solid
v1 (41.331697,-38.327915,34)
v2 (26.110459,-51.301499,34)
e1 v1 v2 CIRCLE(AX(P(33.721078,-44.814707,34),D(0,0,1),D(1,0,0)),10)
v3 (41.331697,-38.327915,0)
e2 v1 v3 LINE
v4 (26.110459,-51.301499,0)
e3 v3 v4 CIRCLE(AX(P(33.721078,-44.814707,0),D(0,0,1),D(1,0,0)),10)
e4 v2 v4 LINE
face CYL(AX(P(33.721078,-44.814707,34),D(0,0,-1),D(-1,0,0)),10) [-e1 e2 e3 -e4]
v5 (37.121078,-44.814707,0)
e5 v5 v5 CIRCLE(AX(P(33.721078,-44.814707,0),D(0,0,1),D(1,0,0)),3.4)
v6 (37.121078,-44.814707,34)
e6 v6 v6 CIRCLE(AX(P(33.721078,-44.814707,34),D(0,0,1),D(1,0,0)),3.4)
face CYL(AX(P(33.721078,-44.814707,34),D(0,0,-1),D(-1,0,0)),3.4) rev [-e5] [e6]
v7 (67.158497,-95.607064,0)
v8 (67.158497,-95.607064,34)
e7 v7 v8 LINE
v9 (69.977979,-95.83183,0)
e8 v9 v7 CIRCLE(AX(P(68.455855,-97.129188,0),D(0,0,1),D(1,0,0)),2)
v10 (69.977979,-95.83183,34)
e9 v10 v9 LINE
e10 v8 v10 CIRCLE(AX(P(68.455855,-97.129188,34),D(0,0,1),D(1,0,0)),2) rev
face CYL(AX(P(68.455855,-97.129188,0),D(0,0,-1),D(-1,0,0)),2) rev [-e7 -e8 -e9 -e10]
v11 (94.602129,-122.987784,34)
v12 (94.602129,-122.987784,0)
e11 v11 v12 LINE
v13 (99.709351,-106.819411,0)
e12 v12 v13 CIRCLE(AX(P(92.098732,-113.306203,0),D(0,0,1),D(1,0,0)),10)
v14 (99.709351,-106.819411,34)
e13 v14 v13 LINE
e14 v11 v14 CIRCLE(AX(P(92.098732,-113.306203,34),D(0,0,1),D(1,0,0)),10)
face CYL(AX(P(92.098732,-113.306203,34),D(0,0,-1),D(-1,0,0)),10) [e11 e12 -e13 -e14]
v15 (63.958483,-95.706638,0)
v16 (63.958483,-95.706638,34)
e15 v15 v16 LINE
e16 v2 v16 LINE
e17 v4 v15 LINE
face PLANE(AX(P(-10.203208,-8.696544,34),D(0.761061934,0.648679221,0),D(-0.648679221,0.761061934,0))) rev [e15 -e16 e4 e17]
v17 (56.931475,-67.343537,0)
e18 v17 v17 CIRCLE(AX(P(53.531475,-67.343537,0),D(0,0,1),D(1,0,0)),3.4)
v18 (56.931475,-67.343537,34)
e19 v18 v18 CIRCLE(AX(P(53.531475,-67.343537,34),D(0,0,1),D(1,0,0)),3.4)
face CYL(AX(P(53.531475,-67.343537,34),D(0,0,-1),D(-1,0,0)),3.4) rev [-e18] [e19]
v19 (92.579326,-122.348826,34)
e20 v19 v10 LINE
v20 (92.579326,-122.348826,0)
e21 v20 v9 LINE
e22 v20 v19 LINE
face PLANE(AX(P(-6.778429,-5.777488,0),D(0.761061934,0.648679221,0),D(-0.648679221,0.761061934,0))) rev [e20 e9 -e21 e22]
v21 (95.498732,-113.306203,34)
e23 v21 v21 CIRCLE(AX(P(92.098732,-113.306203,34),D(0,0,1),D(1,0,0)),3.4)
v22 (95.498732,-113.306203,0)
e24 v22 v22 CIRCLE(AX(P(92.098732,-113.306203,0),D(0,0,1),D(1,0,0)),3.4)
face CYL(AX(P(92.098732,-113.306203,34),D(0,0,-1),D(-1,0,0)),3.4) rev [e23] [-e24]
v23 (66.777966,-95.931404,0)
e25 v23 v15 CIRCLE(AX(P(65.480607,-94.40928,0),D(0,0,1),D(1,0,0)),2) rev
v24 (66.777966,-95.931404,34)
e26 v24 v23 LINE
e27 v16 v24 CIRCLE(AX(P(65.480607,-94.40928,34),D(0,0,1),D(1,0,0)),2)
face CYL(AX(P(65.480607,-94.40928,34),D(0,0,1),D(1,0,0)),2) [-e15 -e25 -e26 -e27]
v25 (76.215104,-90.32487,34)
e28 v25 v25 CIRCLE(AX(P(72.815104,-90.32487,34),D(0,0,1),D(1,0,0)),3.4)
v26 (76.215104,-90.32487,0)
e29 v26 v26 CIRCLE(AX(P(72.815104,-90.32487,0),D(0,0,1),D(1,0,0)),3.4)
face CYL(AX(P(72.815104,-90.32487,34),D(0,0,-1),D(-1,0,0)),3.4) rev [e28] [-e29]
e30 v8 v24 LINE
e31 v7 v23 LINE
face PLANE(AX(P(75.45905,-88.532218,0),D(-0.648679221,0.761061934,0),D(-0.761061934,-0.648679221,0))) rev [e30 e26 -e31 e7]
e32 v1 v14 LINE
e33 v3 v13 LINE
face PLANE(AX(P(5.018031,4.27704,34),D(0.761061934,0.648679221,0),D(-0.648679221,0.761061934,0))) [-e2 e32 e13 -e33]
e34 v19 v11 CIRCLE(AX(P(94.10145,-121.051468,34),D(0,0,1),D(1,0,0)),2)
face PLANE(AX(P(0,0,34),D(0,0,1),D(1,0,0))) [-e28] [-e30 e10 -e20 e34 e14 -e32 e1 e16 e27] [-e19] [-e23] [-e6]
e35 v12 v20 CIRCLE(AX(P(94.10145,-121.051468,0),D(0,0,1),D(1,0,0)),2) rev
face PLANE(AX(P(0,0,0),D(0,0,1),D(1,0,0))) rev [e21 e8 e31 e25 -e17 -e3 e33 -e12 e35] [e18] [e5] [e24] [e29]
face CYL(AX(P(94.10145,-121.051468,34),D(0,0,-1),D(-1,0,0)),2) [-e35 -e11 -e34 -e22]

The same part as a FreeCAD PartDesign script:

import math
import FreeCAD as App
import Part
import Sketcher

V = App.Vector
Q = App.Units.Quantity


def edges_at(feature, points):
    """Names of the edges that pass closest to the given points."""
    edges = feature.Shape.Edges
    near = lambda p: min(range(len(edges)), key=lambda i: edges[i].distToShape(Part.Vertex(*p))[0])
    return sorted({f"Edge{near(p) + 1}" for p in points})

doc = App.newDocument("Part")
body = doc.addObject("PartDesign::Body", "Body")

sketch1 = body.newObject("Sketcher::SketchObject", "Sketch")
sketch1.AttachmentSupport = (doc.getObject("XY_Plane"), [""])
sketch1.MapMode = "FlatFace"
sketch1.addGeometry([
    Part.LineSegment(V(99.709351, -106.819411, 0), V(41.331697, -38.327915, 0)),
    Part.ArcOfCircle(Part.Circle(V(33.721078, -44.814707, 0), V(0, 0, 1), 10), math.radians(40.442095), math.radians(220.442095)),
    Part.LineSegment(V(26.110459, -51.301499, 0), V(84.488113, -119.792995, 0)),
    Part.ArcOfCircle(Part.Circle(V(92.098732, -113.306203, 0), V(0, 0, 1), 10), math.radians(-139.557905), math.radians(40.442095)),
    Part.Circle(V(92.098732, -113.306203, 0), V(0, 0, 1), 3.4),
    Part.Circle(V(72.815104, -90.32487, 0), V(0, 0, 1), 3.4),
    Part.Circle(V(53.531475, -67.343537, 0), V(0, 0, 1), 3.4),
    Part.Circle(V(33.721078, -44.814707, 0), V(0, 0, 1), 3.4),
], False)
sketch1.addConstraint([
    Sketcher.Constraint("Tangent", 0, 2, 1, 1),
    Sketcher.Constraint("Tangent", 1, 2, 2, 1),
    Sketcher.Constraint("Tangent", 2, 2, 3, 1),
    Sketcher.Constraint("Tangent", 3, 2, 0, 1),
    Sketcher.Constraint("Coincident", 4, 3, 3, 3),
    Sketcher.Constraint("Coincident", 7, 3, 1, 3),
    Sketcher.Constraint("Equal", 1, 3),
    Sketcher.Constraint("Equal", 4, 5),
    Sketcher.Constraint("Equal", 5, 6),
    Sketcher.Constraint("Equal", 6, 7),
    Sketcher.Constraint("Radius", 1, Q("10 mm")),
    Sketcher.Constraint("Diameter", 4, Q("6.8 mm")),
    Sketcher.Constraint("DistanceY", 1, 2, -1, 1, Q("51.301499 mm")),
    Sketcher.Constraint("Distance", 0, Q("89.994642 mm")),
    Sketcher.Constraint("DistanceX", -1, 1, 1, 3, Q("33.721078 mm")),
    Sketcher.Constraint("DistanceY", 5, 3, -1, 1, Q("90.32487 mm")),
    Sketcher.Constraint("DistanceX", -1, 1, 1, 2, Q("26.110459 mm")),
    Sketcher.Constraint("DistanceX", 5, 3, 3, 3, Q("19.283628 mm")),
    Sketcher.Constraint("DistanceY", 6, 3, 1, 3, Q("22.528829 mm")),
    Sketcher.Constraint("DistanceX", 6, 3, 5, 3, Q("19.283628 mm")),
])
pad1 = body.newObject("PartDesign::Pad", "Pad")
pad1.Profile = sketch1
pad1.Length = 34

sketch2 = body.newObject("Sketcher::SketchObject", "Sketch001")
sketch2.AttachmentSupport = (doc.getObject("XY_Plane"), [""])
sketch2.MapMode = "FlatFace"
sketch2.AttachmentOffset = App.Placement(V(0, 0, 34), App.Rotation())
sketch2.addGeometry([
    Part.ArcOfCircle(Part.Circle(V(92.098732, -113.306203, 0), V(0, 0, 1), 10), math.radians(-139.557905), math.radians(-82.924918)),
    Part.LineSegment(V(93.330431, -123.230059, 0), V(68.680621, -94.309706, 0)),
    Part.LineSegment(V(68.680621, -94.309706, 0), V(65.255842, -97.228762, 0)),
    Part.LineSegment(V(65.255842, -97.228762, 0), V(84.488113, -119.792995, 0)),
], False)
sketch2.addConstraint([
    Sketcher.Constraint("Coincident", 0, 2, 1, 1),
    Sketcher.Constraint("Coincident", 1, 2, 2, 1),
    Sketcher.Constraint("Coincident", 2, 2, 3, 1),
    Sketcher.Constraint("Tangent", 3, 2, 0, 1),
    Sketcher.Constraint("Perpendicular", 1, 2),
    Sketcher.Constraint("Perpendicular", 2, 3),
    Sketcher.Constraint("Radius", 0, Q("10 mm")),
    Sketcher.Constraint("Distance", 1, Q("38 mm")),
    Sketcher.Constraint("Distance", 2, Q("4.5 mm")),
    Sketcher.Constraint("DistanceX", 0, 3, 0, 2, Q("1.231699 mm")),
    Sketcher.Constraint("DistanceX", -1, 1, 0, 2, Q("93.330431 mm")),
    Sketcher.Constraint("DistanceY", 0, 2, -1, 1, Q("123.230059 mm")),
])
pocket1 = body.newObject("PartDesign::Pocket", "Pocket")
pocket1.Profile = sketch2
pocket1.Type = "ThroughAll"
doc.recompute()

fillet = body.newObject("PartDesign::Fillet", "Fillet")
fillet.Base = (pocket1, edges_at(pocket1, [(68.681, -94.31, 17), (93.33, -123.23, 17), (65.256, -97.229, 17)]))
fillet.Radius = 2

doc.recompute()
